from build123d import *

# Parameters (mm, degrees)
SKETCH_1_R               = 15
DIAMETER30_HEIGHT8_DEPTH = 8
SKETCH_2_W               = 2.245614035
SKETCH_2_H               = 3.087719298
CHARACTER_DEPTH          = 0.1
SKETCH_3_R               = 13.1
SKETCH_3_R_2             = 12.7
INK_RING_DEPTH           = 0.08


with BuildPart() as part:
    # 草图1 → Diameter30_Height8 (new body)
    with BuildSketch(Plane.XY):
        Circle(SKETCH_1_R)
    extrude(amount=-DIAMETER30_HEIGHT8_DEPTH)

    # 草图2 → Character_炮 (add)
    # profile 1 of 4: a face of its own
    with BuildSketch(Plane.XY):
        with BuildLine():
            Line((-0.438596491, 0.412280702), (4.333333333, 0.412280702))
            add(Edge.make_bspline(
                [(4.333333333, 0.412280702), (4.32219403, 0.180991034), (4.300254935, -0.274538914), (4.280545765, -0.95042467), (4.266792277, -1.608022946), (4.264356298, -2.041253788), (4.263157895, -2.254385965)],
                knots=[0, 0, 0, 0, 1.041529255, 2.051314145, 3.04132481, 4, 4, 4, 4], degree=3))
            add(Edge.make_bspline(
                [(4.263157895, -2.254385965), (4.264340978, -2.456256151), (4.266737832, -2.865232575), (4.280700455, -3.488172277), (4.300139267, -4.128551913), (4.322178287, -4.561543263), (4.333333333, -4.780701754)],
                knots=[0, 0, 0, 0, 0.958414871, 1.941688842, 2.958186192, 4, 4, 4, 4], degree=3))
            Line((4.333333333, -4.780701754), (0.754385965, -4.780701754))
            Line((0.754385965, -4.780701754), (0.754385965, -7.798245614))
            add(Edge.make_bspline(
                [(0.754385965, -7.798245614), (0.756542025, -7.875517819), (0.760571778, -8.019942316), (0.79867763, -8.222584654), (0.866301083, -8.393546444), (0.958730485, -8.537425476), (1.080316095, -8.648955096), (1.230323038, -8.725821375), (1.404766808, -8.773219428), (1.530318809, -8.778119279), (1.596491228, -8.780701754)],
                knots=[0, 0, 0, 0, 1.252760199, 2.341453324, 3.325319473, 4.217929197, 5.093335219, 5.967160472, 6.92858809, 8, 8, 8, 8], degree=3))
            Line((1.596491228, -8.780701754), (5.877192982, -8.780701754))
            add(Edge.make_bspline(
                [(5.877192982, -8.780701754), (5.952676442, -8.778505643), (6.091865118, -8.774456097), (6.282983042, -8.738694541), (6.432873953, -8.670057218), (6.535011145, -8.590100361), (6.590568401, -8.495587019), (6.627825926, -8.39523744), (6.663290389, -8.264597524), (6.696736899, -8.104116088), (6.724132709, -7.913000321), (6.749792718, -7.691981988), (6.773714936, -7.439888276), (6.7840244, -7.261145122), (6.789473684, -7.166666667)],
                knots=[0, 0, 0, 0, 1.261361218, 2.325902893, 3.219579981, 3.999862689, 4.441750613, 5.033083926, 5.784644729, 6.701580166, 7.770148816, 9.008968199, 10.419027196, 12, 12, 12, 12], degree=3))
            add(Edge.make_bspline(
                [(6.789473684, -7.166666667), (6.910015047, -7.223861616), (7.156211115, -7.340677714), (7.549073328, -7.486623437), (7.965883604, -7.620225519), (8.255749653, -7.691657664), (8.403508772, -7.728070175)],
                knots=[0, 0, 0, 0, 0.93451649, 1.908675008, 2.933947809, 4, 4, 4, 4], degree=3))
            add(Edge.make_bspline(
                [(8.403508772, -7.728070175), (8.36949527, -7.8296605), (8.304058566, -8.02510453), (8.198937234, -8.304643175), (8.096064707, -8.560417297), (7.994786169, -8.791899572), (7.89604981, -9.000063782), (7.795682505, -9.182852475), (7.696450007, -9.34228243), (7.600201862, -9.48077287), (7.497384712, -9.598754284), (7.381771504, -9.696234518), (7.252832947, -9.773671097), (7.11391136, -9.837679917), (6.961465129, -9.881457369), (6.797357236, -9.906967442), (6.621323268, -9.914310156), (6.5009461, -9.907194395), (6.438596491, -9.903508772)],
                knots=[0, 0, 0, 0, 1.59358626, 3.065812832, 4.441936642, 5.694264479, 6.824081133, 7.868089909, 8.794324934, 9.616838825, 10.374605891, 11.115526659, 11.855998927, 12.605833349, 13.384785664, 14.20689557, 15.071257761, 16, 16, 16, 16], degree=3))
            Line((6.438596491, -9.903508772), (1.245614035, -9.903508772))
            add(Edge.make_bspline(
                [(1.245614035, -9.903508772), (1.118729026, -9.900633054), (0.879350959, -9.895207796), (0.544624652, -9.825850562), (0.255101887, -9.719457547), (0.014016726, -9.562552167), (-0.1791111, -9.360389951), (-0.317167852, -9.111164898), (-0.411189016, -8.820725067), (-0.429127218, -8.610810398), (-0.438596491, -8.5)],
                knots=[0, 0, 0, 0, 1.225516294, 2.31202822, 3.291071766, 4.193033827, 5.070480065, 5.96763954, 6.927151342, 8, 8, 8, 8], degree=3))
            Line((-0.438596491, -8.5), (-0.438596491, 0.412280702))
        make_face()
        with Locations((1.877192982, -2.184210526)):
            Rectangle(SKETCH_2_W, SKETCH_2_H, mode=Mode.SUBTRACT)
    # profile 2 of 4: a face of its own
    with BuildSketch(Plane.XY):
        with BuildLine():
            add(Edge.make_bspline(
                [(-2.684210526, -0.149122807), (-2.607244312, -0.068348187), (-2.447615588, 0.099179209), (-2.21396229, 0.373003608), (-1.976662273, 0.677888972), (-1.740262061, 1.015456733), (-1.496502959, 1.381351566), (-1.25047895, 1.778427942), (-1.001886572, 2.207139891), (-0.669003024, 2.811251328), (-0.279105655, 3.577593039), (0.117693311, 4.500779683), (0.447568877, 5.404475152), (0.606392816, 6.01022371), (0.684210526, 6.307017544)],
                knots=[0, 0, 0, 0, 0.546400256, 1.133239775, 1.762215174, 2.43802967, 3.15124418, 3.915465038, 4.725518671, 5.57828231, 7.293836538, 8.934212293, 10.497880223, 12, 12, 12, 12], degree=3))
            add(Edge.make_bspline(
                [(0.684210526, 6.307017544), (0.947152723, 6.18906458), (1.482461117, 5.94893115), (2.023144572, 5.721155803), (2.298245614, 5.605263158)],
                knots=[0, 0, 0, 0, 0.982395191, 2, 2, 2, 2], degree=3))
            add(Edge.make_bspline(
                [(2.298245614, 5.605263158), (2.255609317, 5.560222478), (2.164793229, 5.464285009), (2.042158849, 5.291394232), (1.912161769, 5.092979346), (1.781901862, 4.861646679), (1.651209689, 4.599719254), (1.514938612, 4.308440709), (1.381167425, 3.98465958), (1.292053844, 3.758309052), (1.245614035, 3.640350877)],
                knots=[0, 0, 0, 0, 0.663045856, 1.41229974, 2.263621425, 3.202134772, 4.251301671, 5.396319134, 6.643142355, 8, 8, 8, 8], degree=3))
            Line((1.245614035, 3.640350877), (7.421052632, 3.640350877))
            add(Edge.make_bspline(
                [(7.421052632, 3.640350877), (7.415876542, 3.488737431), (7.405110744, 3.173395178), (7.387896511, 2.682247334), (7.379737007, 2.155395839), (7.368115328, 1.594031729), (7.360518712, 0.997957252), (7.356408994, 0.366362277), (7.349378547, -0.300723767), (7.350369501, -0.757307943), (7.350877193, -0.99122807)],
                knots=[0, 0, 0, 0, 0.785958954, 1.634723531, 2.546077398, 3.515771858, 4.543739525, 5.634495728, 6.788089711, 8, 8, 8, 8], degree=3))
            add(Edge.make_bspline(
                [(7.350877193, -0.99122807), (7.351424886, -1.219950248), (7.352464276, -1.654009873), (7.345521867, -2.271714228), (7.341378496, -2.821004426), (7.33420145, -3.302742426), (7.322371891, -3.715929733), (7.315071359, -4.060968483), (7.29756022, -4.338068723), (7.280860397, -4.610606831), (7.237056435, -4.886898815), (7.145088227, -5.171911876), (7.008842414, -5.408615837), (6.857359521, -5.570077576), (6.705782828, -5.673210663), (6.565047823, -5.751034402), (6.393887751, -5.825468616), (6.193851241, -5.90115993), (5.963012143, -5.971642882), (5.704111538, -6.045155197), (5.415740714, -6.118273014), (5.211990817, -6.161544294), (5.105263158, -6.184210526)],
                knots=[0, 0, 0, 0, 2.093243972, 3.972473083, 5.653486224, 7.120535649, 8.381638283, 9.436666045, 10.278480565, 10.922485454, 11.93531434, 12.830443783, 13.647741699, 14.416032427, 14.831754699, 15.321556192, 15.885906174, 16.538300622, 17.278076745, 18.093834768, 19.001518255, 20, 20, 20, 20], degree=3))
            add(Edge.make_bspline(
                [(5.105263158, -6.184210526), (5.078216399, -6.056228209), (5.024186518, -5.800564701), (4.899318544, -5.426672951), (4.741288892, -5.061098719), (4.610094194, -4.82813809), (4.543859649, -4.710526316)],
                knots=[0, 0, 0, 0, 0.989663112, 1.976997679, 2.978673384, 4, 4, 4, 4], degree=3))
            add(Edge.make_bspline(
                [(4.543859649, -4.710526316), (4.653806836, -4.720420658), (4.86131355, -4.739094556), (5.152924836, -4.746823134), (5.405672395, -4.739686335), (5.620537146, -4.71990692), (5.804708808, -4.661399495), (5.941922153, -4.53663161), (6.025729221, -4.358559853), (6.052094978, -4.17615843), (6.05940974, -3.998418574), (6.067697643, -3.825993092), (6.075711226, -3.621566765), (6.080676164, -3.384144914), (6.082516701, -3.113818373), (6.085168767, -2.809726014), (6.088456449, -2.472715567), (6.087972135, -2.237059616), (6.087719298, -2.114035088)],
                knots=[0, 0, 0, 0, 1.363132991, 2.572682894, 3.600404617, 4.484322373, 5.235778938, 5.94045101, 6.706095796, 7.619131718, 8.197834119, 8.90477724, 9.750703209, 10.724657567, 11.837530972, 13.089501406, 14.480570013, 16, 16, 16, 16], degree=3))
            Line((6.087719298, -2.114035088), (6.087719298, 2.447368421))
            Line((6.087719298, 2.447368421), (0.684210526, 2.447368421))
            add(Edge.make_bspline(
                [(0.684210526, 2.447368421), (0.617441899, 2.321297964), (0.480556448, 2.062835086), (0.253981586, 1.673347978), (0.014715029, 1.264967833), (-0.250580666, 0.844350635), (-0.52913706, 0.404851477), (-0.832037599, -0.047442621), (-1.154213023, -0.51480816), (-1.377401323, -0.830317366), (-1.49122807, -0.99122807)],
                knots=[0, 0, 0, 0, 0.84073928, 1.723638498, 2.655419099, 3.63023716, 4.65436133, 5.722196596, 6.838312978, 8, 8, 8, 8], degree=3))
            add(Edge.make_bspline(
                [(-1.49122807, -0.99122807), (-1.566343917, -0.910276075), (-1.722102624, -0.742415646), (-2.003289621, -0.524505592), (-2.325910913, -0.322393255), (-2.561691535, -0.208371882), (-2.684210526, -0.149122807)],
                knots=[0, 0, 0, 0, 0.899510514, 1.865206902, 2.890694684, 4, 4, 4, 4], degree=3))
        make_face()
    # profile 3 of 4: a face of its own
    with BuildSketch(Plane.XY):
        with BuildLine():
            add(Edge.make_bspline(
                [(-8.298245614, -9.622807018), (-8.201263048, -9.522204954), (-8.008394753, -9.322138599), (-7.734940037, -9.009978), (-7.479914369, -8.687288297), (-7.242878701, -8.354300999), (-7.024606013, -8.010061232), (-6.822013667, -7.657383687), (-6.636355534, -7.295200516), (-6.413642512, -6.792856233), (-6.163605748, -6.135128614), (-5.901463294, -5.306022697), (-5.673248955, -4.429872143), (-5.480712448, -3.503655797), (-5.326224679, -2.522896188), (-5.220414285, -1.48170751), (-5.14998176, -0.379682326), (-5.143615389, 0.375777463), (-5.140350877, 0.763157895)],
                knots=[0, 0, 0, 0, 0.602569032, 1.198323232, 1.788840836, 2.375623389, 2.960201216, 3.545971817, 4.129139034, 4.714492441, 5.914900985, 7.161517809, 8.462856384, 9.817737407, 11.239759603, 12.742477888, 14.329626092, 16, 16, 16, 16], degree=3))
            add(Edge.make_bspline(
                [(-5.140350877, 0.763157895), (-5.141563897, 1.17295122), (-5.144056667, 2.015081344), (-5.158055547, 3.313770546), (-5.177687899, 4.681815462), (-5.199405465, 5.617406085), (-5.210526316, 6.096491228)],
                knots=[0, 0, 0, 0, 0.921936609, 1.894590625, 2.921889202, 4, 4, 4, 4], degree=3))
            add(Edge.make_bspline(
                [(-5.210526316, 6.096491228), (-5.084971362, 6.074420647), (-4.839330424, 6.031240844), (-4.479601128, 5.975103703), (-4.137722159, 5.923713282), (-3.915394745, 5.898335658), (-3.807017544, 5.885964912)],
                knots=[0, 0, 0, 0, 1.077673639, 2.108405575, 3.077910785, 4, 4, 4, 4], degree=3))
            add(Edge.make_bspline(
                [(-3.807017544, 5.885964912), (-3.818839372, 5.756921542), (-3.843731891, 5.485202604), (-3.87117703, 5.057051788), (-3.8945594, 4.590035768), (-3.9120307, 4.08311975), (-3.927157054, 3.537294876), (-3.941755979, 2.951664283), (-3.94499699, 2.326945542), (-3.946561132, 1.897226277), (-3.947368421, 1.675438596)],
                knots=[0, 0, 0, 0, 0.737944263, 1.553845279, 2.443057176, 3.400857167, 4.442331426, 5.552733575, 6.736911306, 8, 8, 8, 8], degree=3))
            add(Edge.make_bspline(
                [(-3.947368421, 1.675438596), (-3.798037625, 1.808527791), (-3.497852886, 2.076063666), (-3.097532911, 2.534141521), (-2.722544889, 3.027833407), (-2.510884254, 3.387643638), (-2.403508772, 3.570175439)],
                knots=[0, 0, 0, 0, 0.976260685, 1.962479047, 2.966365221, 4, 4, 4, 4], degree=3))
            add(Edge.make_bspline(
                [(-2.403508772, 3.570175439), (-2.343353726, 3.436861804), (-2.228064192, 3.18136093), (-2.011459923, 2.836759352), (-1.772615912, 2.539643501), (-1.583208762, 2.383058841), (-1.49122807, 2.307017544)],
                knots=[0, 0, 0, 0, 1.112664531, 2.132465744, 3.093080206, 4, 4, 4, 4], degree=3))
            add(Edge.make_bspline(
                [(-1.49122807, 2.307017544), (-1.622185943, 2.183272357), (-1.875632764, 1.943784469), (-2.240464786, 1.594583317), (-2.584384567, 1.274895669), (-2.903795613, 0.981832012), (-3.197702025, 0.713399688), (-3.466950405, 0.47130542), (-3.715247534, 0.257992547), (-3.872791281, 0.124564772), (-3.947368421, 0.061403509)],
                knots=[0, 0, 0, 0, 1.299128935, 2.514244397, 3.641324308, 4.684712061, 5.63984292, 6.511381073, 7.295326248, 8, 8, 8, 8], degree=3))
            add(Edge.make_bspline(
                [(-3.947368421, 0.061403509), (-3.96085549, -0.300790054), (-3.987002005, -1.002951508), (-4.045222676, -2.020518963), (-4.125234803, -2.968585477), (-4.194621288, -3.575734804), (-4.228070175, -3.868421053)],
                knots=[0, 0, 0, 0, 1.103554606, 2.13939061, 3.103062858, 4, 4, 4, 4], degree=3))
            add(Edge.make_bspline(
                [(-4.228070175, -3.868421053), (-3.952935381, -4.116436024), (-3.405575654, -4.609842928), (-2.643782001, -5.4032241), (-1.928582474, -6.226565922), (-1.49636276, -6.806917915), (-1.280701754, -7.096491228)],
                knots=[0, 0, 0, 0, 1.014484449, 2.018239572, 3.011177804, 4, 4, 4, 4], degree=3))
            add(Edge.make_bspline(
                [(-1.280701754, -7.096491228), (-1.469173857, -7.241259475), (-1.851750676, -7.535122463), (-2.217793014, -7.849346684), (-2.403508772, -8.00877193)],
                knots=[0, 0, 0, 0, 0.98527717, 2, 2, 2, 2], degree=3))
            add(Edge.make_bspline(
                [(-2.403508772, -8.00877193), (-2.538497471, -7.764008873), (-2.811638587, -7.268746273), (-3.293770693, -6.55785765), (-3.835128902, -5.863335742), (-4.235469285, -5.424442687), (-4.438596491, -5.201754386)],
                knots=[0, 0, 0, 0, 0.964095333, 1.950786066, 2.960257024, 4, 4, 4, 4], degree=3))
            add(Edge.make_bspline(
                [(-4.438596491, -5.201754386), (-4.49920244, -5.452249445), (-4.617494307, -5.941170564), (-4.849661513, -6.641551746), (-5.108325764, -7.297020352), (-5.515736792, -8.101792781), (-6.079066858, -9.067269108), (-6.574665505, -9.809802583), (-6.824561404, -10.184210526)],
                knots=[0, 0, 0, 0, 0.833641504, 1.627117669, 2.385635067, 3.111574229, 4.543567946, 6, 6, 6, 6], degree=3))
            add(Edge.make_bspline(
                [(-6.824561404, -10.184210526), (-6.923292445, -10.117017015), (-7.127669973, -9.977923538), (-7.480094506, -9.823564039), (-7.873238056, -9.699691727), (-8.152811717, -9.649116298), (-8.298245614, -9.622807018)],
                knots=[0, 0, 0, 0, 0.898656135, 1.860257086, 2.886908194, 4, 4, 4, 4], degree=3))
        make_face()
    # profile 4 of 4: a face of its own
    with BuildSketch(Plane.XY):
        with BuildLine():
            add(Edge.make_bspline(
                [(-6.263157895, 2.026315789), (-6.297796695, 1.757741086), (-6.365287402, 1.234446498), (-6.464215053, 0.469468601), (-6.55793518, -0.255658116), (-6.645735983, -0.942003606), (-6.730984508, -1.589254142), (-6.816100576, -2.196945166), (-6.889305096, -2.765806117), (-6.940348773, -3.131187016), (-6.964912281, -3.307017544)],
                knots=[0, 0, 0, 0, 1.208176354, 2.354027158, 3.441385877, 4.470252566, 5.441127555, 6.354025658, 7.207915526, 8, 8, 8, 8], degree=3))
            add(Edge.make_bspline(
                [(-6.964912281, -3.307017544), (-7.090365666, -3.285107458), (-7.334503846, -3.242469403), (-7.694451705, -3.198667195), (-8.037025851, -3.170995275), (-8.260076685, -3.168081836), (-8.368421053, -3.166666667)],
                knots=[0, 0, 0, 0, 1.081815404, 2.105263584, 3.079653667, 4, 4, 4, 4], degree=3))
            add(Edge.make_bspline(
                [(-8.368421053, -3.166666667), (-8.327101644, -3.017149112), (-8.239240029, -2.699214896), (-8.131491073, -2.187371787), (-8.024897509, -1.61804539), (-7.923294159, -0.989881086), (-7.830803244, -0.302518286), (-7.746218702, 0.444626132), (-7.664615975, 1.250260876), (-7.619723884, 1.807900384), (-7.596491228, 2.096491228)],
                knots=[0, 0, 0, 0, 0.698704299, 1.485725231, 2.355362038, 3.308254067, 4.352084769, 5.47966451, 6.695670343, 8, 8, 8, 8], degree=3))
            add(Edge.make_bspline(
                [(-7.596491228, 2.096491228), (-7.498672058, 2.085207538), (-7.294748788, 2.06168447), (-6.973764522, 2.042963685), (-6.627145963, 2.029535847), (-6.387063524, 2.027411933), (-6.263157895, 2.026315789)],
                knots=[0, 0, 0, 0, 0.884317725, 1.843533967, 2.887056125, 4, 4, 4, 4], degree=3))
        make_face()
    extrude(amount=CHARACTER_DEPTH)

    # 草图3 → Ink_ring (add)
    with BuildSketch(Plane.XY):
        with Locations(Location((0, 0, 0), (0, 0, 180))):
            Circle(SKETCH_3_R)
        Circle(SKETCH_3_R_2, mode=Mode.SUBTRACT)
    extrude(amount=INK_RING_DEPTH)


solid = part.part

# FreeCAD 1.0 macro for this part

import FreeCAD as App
import Part
import Sketcher

V = App.Vector

doc = App.newDocument("Part")
body = doc.addObject("PartDesign::Body", "Body")

# Sketch on XY plane
sketch1 = body.newObject("Sketcher::SketchObject", "Sketch")
sketch1.AttachmentSupport = (doc.getObject("XY_Plane"), [""])
sketch1.MapMode = "FlatFace"
sketch1.addGeometry(Part.Circle(V(0, 0, 0), V(0, 0, 1), 15), False)
sketch1.addConstraint([
    Sketcher.Constraint("Coincident", 0, 3, -1, 1),
    Sketcher.Constraint("Diameter", 0, 30.0),
])
pad1 = body.newObject("PartDesign::Pad", "Pad")
pad1.Profile = sketch1
pad1.Length = 8
pad1.Reversed = True

# Sketch on XY plane
sketch2 = body.newObject("Sketcher::SketchObject", "Sketch001")
sketch2.AttachmentSupport = (doc.getObject("XY_Plane"), [""])
sketch2.MapMode = "FlatFace"
sketch2.addGeometry([
    Part.LineSegment(V(4.333333, 0.412281, 0), V(-0.438596, 0.412281, 0)),  # 0
    Part.LineSegment(V(-0.438596, 0.412281, 0), V(-0.438596, -8.5, 0)),  # 1
    Part.BSplineCurve([V(1.245614, -9.903509, 0), V(1.118729, -9.900633, 0), V(0.879351, -9.895208, 0), V(0.544625, -9.825851, 0), V(0.255102, -9.719458, 0), V(0.014017, -9.562552, 0), V(-0.179111, -9.36039, 0), V(-0.317168, -9.111165, 0), V(-0.411189, -8.820725, 0), V(-0.429127, -8.61081, 0), V(-0.438596, -8.5, 0)], [4, 1, 1, 1, 1, 1, 1, 1, 4], [0, 1.225516294, 2.31202822, 3.291071766, 4.193033827, 5.070480065, 5.96763954, 6.927151342, 8], False, 3, [1, 1, 1, 1, 1, 1, 1, 1, 1, 1, 1], False),  # 2
    Part.LineSegment(V(1.245614, -9.903509, 0), V(6.438596, -9.903509, 0)),  # 3
    Part.BSplineCurve([V(8.403509, -7.72807, 0), V(8.369495, -7.829661, 0), V(8.304059, -8.025105, 0), V(8.198937, -8.304643, 0), V(8.096065, -8.560417, 0), V(7.994786, -8.7919, 0), V(7.89605, -9.000064, 0), V(7.795683, -9.182852, 0), V(7.69645, -9.342282, 0), V(7.600202, -9.480773, 0), V(7.497385, -9.598754, 0), V(7.381772, -9.696235, 0), V(7.252833, -9.773671, 0), V(7.113911, -9.83768, 0), V(6.961465, -9.881457, 0), V(6.797357, -9.906967, 0), V(6.621323, -9.91431, 0), V(6.500946, -9.907194, 0), V(6.438596, -9.903509, 0)], [4, 1, 1, 1, 1, 1, 1, 1, 1, 1, 1, 1, 1, 1, 1, 1, 4], [0, 1.59358626, 3.065812832, 4.441936642, 5.694264479, 6.824081133, 7.868089909, 8.794324934, 9.616838825, 10.374605891, 11.115526659, 11.855998927, 12.605833349, 13.384785664, 14.20689557, 15.071257761, 16], False, 3, [1, 1, 1, 1, 1, 1, 1, 1, 1, 1, 1, 1, 1, 1, 1, 1, 1, 1, 1], False),  # 4
    Part.BSplineCurve([V(6.789474, -7.166667, 0), V(6.910015, -7.223862, 0), V(7.156211, -7.340678, 0), V(7.549073, -7.486623, 0), V(7.965884, -7.620226, 0), V(8.25575, -7.691658, 0), V(8.403509, -7.72807, 0)], [4, 1, 1, 1, 4], [0, 0.93451649, 1.908675008, 2.933947809, 4], False, 3, [1, 1, 1, 1, 1, 1, 1], False),  # 5
    Part.BSplineCurve([V(5.877193, -8.780702, 0), V(5.952676, -8.778506, 0), V(6.091865, -8.774456, 0), V(6.282983, -8.738695, 0), V(6.432874, -8.670057, 0), V(6.535011, -8.5901, 0), V(6.590568, -8.495587, 0), V(6.627826, -8.395237, 0), V(6.66329, -8.264598, 0), V(6.696737, -8.104116, 0), V(6.724133, -7.913, 0), V(6.749793, -7.691982, 0), V(6.773715, -7.439888, 0), V(6.784024, -7.261145, 0), V(6.789474, -7.166667, 0)], [4, 1, 1, 1, 1, 1, 1, 1, 1, 1, 1, 1, 4], [0, 1.261361218, 2.325902893, 3.219579981, 3.999862689, 4.441750613, 5.033083926, 5.784644729, 6.701580166, 7.770148816, 9.008968199, 10.419027196, 12], False, 3, [1, 1, 1, 1, 1, 1, 1, 1, 1, 1, 1, 1, 1, 1, 1], False),  # 6
    Part.LineSegment(V(5.877193, -8.780702, 0), V(1.596491, -8.780702, 0)),  # 7
    Part.BSplineCurve([V(0.754386, -7.798246, 0), V(0.756542, -7.875518, 0), V(0.760572, -8.019942, 0), V(0.798678, -8.222585, 0), V(0.866301, -8.393546, 0), V(0.95873, -8.537425, 0), V(1.080316, -8.648955, 0), V(1.230323, -8.725821, 0), V(1.404767, -8.773219, 0), V(1.530319, -8.778119, 0), V(1.596491, -8.780702, 0)], [4, 1, 1, 1, 1, 1, 1, 1, 4], [0, 1.252760199, 2.341453324, 3.325319473, 4.217929197, 5.093335219, 5.967160472, 6.92858809, 8], False, 3, [1, 1, 1, 1, 1, 1, 1, 1, 1, 1, 1], False),  # 8
    Part.LineSegment(V(0.754386, -7.798246, 0), V(0.754386, -4.780702, 0)),  # 9
    Part.LineSegment(V(0.754386, -4.780702, 0), V(4.333333, -4.780702, 0)),  # 10
    Part.BSplineCurve([V(4.263158, -2.254386, 0), V(4.264341, -2.456256, 0), V(4.266738, -2.865233, 0), V(4.2807, -3.488172, 0), V(4.300139, -4.128552, 0), V(4.322178, -4.561543, 0), V(4.333333, -4.780702, 0)], [4, 1, 1, 1, 4], [0, 0.958414871, 1.941688842, 2.958186192, 4], False, 3, [1, 1, 1, 1, 1, 1, 1], False),  # 11
    Part.BSplineCurve([V(4.333333, 0.412281, 0), V(4.322194, 0.180991, 0), V(4.300255, -0.274539, 0), V(4.280546, -0.950425, 0), V(4.266792, -1.608023, 0), V(4.264356, -2.041254, 0), V(4.263158, -2.254386, 0)], [4, 1, 1, 1, 4], [0, 1.041529255, 2.051314145, 3.04132481, 4], False, 3, [1, 1, 1, 1, 1, 1, 1], False),  # 12
    Part.LineSegment(V(0.754386, -3.72807, 0), V(0.754386, -0.640351, 0)),  # 13
    Part.LineSegment(V(0.754386, -0.640351, 0), V(3, -0.640351, 0)),  # 14
    Part.LineSegment(V(3, -0.640351, 0), V(3, -3.72807, 0)),  # 15
    Part.LineSegment(V(3, -3.72807, 0), V(0.754386, -3.72807, 0)),  # 16
    Part.BSplineCurve([V(-2.684211, -0.149123, 0), V(-2.607244, -0.068348, 0), V(-2.447616, 0.099179, 0), V(-2.213962, 0.373004, 0), V(-1.976662, 0.677889, 0), V(-1.740262, 1.015457, 0), V(-1.496503, 1.381352, 0), V(-1.250479, 1.778428, 0), V(-1.001887, 2.20714, 0), V(-0.669003, 2.811251, 0), V(-0.279106, 3.577593, 0), V(0.117693, 4.50078, 0), V(0.447569, 5.404475, 0), V(0.606393, 6.010224, 0), V(0.684211, 6.307018, 0)], [4, 1, 1, 1, 1, 1, 1, 1, 1, 1, 1, 1, 4], [0, 0.546400256, 1.133239775, 1.762215174, 2.43802967, 3.15124418, 3.915465038, 4.725518671, 5.57828231, 7.293836538, 8.934212293, 10.497880223, 12], False, 3, [1, 1, 1, 1, 1, 1, 1, 1, 1, 1, 1, 1, 1, 1, 1], False),  # 17
    Part.BSplineCurve([V(-1.491228, -0.991228, 0), V(-1.566344, -0.910276, 0), V(-1.722103, -0.742416, 0), V(-2.00329, -0.524506, 0), V(-2.325911, -0.322393, 0), V(-2.561692, -0.208372, 0), V(-2.684211, -0.149123, 0)], [4, 1, 1, 1, 4], [0, 0.899510514, 1.865206902, 2.890694684, 4], False, 3, [1, 1, 1, 1, 1, 1, 1], False),  # 18
    Part.BSplineCurve([V(0.684211, 2.447368, 0), V(0.617442, 2.321298, 0), V(0.480556, 2.062835, 0), V(0.253982, 1.673348, 0), V(0.014715, 1.264968, 0), V(-0.250581, 0.844351, 0), V(-0.529137, 0.404851, 0), V(-0.832038, -0.047443, 0), V(-1.154213, -0.514808, 0), V(-1.377401, -0.830317, 0), V(-1.491228, -0.991228, 0)], [4, 1, 1, 1, 1, 1, 1, 1, 4], [0, 0.84073928, 1.723638498, 2.655419099, 3.63023716, 4.65436133, 5.722196596, 6.838312978, 8], False, 3, [1, 1, 1, 1, 1, 1, 1, 1, 1, 1, 1], False),  # 19
    Part.LineSegment(V(0.684211, 2.447368, 0), V(6.087719, 2.447368, 0)),  # 20
    Part.LineSegment(V(6.087719, 2.447368, 0), V(6.087719, -2.114035, 0)),  # 21
    Part.BSplineCurve([V(4.54386, -4.710526, 0), V(4.653807, -4.720421, 0), V(4.861314, -4.739095, 0), V(5.152925, -4.746823, 0), V(5.405672, -4.739686, 0), V(5.620537, -4.719907, 0), V(5.804709, -4.661399, 0), V(5.941922, -4.536632, 0), V(6.025729, -4.35856, 0), V(6.052095, -4.176158, 0), V(6.05941, -3.998419, 0), V(6.067698, -3.825993, 0), V(6.075711, -3.621567, 0), V(6.080676, -3.384145, 0), V(6.082517, -3.113818, 0), V(6.085169, -2.809726, 0), V(6.088456, -2.472716, 0), V(6.087972, -2.23706, 0), V(6.087719, -2.114035, 0)], [4, 1, 1, 1, 1, 1, 1, 1, 1, 1, 1, 1, 1, 1, 1, 1, 4], [0, 1.363132991, 2.572682894, 3.600404617, 4.484322373, 5.235778938, 5.94045101, 6.706095796, 7.619131718, 8.197834119, 8.90477724, 9.750703209, 10.724657567, 11.837530972, 13.089501406, 14.480570013, 16], False, 3, [1, 1, 1, 1, 1, 1, 1, 1, 1, 1, 1, 1, 1, 1, 1, 1, 1, 1, 1], False),  # 22
    Part.BSplineCurve([V(5.105263, -6.184211, 0), V(5.078216, -6.056228, 0), V(5.024187, -5.800565, 0), V(4.899319, -5.426673, 0), V(4.741289, -5.061099, 0), V(4.610094, -4.828138, 0), V(4.54386, -4.710526, 0)], [4, 1, 1, 1, 4], [0, 0.989663112, 1.976997679, 2.978673384, 4], False, 3, [1, 1, 1, 1, 1, 1, 1], False),  # 23
    Part.BSplineCurve([V(7.350877, -0.991228, 0), V(7.351425, -1.21995, 0), V(7.352464, -1.65401, 0), V(7.345522, -2.271714, 0), V(7.341378, -2.821004, 0), V(7.334201, -3.302742, 0), V(7.322372, -3.71593, 0), V(7.315071, -4.060968, 0), V(7.29756, -4.338069, 0), V(7.28086, -4.610607, 0), V(7.237056, -4.886899, 0), V(7.145088, -5.171912, 0), V(7.008842, -5.408616, 0), V(6.85736, -5.570078, 0), V(6.705783, -5.673211, 0), V(6.565048, -5.751034, 0), V(6.393888, -5.825469, 0), V(6.193851, -5.90116, 0), V(5.963012, -5.971643, 0), V(5.704112, -6.045155, 0), V(5.415741, -6.118273, 0), V(5.211991, -6.161544, 0), V(5.105263, -6.184211, 0)], [4, 1, 1, 1, 1, 1, 1, 1, 1, 1, 1, 1, 1, 1, 1, 1, 1, 1, 1, 1, 4], [0, 2.093243972, 3.972473083, 5.653486224, 7.120535649, 8.381638283, 9.436666045, 10.278480565, 10.922485454, 11.93531434, 12.830443783, 13.647741699, 14.416032427, 14.831754699, 15.321556192, 15.885906174, 16.538300622, 17.278076745, 18.093834768, 19.001518255, 20], False, 3, [1, 1, 1, 1, 1, 1, 1, 1, 1, 1, 1, 1, 1, 1, 1, 1, 1, 1, 1, 1, 1, 1, 1], False),  # 24
    Part.BSplineCurve([V(7.421053, 3.640351, 0), V(7.415877, 3.488737, 0), V(7.405111, 3.173395, 0), V(7.387897, 2.682247, 0), V(7.379737, 2.155396, 0), V(7.368115, 1.594032, 0), V(7.360519, 0.997957, 0), V(7.356409, 0.366362, 0), V(7.349379, -0.300724, 0), V(7.35037, -0.757308, 0), V(7.350877, -0.991228, 0)], [4, 1, 1, 1, 1, 1, 1, 1, 4], [0, 0.785958954, 1.634723531, 2.546077398, 3.515771858, 4.543739525, 5.634495728, 6.788089711, 8], False, 3, [1, 1, 1, 1, 1, 1, 1, 1, 1, 1, 1], False),  # 25
    Part.LineSegment(V(7.421053, 3.640351, 0), V(1.245614, 3.640351, 0)),  # 26
    Part.BSplineCurve([V(2.298246, 5.605263, 0), V(2.255609, 5.560222, 0), V(2.164793, 5.464285, 0), V(2.042159, 5.291394, 0), V(1.912162, 5.092979, 0), V(1.781902, 4.861647, 0), V(1.65121, 4.599719, 0), V(1.514939, 4.308441, 0), V(1.381167, 3.98466, 0), V(1.292054, 3.758309, 0), V(1.245614, 3.640351, 0)], [4, 1, 1, 1, 1, 1, 1, 1, 4], [0, 0.663045856, 1.41229974, 2.263621425, 3.202134772, 4.251301671, 5.396319134, 6.643142355, 8], False, 3, [1, 1, 1, 1, 1, 1, 1, 1, 1, 1, 1], False),  # 27
    Part.BSplineCurve([V(0.684211, 6.307018, 0), V(0.947153, 6.189065, 0), V(1.482461, 5.948931, 0), V(2.023145, 5.721156, 0), V(2.298246, 5.605263, 0)], [4, 1, 4], [0, 0.982395191, 2], False, 3, [1, 1, 1, 1, 1], False),  # 28
    Part.BSplineCurve([V(-8.298246, -9.622807, 0), V(-8.201263, -9.522205, 0), V(-8.008395, -9.322139, 0), V(-7.73494, -9.009978, 0), V(-7.479914, -8.687288, 0), V(-7.242879, -8.354301, 0), V(-7.024606, -8.010061, 0), V(-6.822014, -7.657384, 0), V(-6.636356, -7.295201, 0), V(-6.413643, -6.792856, 0), V(-6.163606, -6.135129, 0), V(-5.901463, -5.306023, 0), V(-5.673249, -4.429872, 0), V(-5.480712, -3.503656, 0), V(-5.326225, -2.522896, 0), V(-5.220414, -1.481708, 0), V(-5.149982, -0.379682, 0), V(-5.143615, 0.375777, 0), V(-5.140351, 0.763158, 0)], [4, 1, 1, 1, 1, 1, 1, 1, 1, 1, 1, 1, 1, 1, 1, 1, 4], [0, 0.602569032, 1.198323232, 1.788840836, 2.375623389, 2.960201216, 3.545971817, 4.129139034, 4.714492441, 5.914900985, 7.161517809, 8.462856384, 9.817737407, 11.239759603, 12.742477888, 14.329626092, 16], False, 3, [1, 1, 1, 1, 1, 1, 1, 1, 1, 1, 1, 1, 1, 1, 1, 1, 1, 1, 1], False),  # 29
    Part.BSplineCurve([V(-6.824561, -10.184211, 0), V(-6.923292, -10.117017, 0), V(-7.12767, -9.977924, 0), V(-7.480095, -9.823564, 0), V(-7.873238, -9.699692, 0), V(-8.152812, -9.649116, 0), V(-8.298246, -9.622807, 0)], [4, 1, 1, 1, 4], [0, 0.898656135, 1.860257086, 2.886908194, 4], False, 3, [1, 1, 1, 1, 1, 1, 1], False),  # 30
    Part.BSplineCurve([V(-4.438596, -5.201754, 0), V(-4.499202, -5.452249, 0), V(-4.617494, -5.941171, 0), V(-4.849662, -6.641552, 0), V(-5.108326, -7.29702, 0), V(-5.515737, -8.101793, 0), V(-6.079067, -9.067269, 0), V(-6.574666, -9.809803, 0), V(-6.824561, -10.184211, 0)], [4, 1, 1, 1, 1, 1, 4], [0, 0.833641504, 1.627117669, 2.385635067, 3.111574229, 4.543567946, 6], False, 3, [1, 1, 1, 1, 1, 1, 1, 1, 1], False),  # 31
    Part.BSplineCurve([V(-2.403509, -8.008772, 0), V(-2.538497, -7.764009, 0), V(-2.811639, -7.268746, 0), V(-3.293771, -6.557858, 0), V(-3.835129, -5.863336, 0), V(-4.235469, -5.424443, 0), V(-4.438596, -5.201754, 0)], [4, 1, 1, 1, 4], [0, 0.964095333, 1.950786066, 2.960257024, 4], False, 3, [1, 1, 1, 1, 1, 1, 1], False),  # 32
    Part.BSplineCurve([V(-1.280702, -7.096491, 0), V(-1.469174, -7.241259, 0), V(-1.851751, -7.535122, 0), V(-2.217793, -7.849347, 0), V(-2.403509, -8.008772, 0)], [4, 1, 4], [0, 0.98527717, 2], False, 3, [1, 1, 1, 1, 1], False),  # 33
    Part.BSplineCurve([V(-4.22807, -3.868421, 0), V(-3.952935, -4.116436, 0), V(-3.405576, -4.609843, 0), V(-2.643782, -5.403224, 0), V(-1.928582, -6.226566, 0), V(-1.496363, -6.806918, 0), V(-1.280702, -7.096491, 0)], [4, 1, 1, 1, 4], [0, 1.014484449, 2.018239572, 3.011177804, 4], False, 3, [1, 1, 1, 1, 1, 1, 1], False),  # 34
    Part.BSplineCurve([V(-3.947368, 0.061404, 0), V(-3.960855, -0.30079, 0), V(-3.987002, -1.002952, 0), V(-4.045223, -2.020519, 0), V(-4.125235, -2.968585, 0), V(-4.194621, -3.575735, 0), V(-4.22807, -3.868421, 0)], [4, 1, 1, 1, 4], [0, 1.103554606, 2.13939061, 3.103062858, 4], False, 3, [1, 1, 1, 1, 1, 1, 1], False),  # 35
    Part.BSplineCurve([V(-1.491228, 2.307018, 0), V(-1.622186, 2.183272, 0), V(-1.875633, 1.943784, 0), V(-2.240465, 1.594583, 0), V(-2.584385, 1.274896, 0), V(-2.903796, 0.981832, 0), V(-3.197702, 0.7134, 0), V(-3.46695, 0.471305, 0), V(-3.715248, 0.257993, 0), V(-3.872791, 0.124565, 0), V(-3.947368, 0.061404, 0)], [4, 1, 1, 1, 1, 1, 1, 1, 4], [0, 1.299128935, 2.514244397, 3.641324308, 4.684712061, 5.63984292, 6.511381073, 7.295326248, 8], False, 3, [1, 1, 1, 1, 1, 1, 1, 1, 1, 1, 1], False),  # 36
    Part.BSplineCurve([V(-2.403509, 3.570175, 0), V(-2.343354, 3.436862, 0), V(-2.228064, 3.181361, 0), V(-2.01146, 2.836759, 0), V(-1.772616, 2.539644, 0), V(-1.583209, 2.383059, 0), V(-1.491228, 2.307018, 0)], [4, 1, 1, 1, 4], [0, 1.112664531, 2.132465744, 3.093080206, 4], False, 3, [1, 1, 1, 1, 1, 1, 1], False),  # 37
    Part.BSplineCurve([V(-3.947368, 1.675439, 0), V(-3.798038, 1.808528, 0), V(-3.497853, 2.076064, 0), V(-3.097533, 2.534142, 0), V(-2.722545, 3.027833, 0), V(-2.510884, 3.387644, 0), V(-2.403509, 3.570175, 0)], [4, 1, 1, 1, 4], [0, 0.976260685, 1.962479047, 2.966365221, 4], False, 3, [1, 1, 1, 1, 1, 1, 1], False),  # 38
    Part.BSplineCurve([V(-3.807018, 5.885965, 0), V(-3.818839, 5.756922, 0), V(-3.843732, 5.485203, 0), V(-3.871177, 5.057052, 0), V(-3.894559, 4.590036, 0), V(-3.912031, 4.08312, 0), V(-3.927157, 3.537295, 0), V(-3.941756, 2.951664, 0), V(-3.944997, 2.326946, 0), V(-3.946561, 1.897226, 0), V(-3.947368, 1.675439, 0)], [4, 1, 1, 1, 1, 1, 1, 1, 4], [0, 0.737944263, 1.553845279, 2.443057176, 3.400857167, 4.442331426, 5.552733575, 6.736911306, 8], False, 3, [1, 1, 1, 1, 1, 1, 1, 1, 1, 1, 1], False),  # 39
    Part.BSplineCurve([V(-5.210526, 6.096491, 0), V(-5.084971, 6.074421, 0), V(-4.83933, 6.031241, 0), V(-4.479601, 5.975104, 0), V(-4.137722, 5.923713, 0), V(-3.915395, 5.898336, 0), V(-3.807018, 5.885965, 0)], [4, 1, 1, 1, 4], [0, 1.077673639, 2.108405575, 3.077910785, 4], False, 3, [1, 1, 1, 1, 1, 1, 1], False),  # 40
    Part.BSplineCurve([V(-5.140351, 0.763158, 0), V(-5.141564, 1.172951, 0), V(-5.144057, 2.015081, 0), V(-5.158056, 3.313771, 0), V(-5.177688, 4.681815, 0), V(-5.199405, 5.617406, 0), V(-5.210526, 6.096491, 0)], [4, 1, 1, 1, 4], [0, 0.921936609, 1.894590625, 2.921889202, 4], False, 3, [1, 1, 1, 1, 1, 1, 1], False),  # 41
    Part.BSplineCurve([V(-6.263158, 2.026316, 0), V(-6.297797, 1.757741, 0), V(-6.365287, 1.234446, 0), V(-6.464215, 0.469469, 0), V(-6.557935, -0.255658, 0), V(-6.645736, -0.942004, 0), V(-6.730985, -1.589254, 0), V(-6.816101, -2.196945, 0), V(-6.889305, -2.765806, 0), V(-6.940349, -3.131187, 0), V(-6.964912, -3.307018, 0)], [4, 1, 1, 1, 1, 1, 1, 1, 4], [0, 1.208176354, 2.354027158, 3.441385877, 4.470252566, 5.441127555, 6.354025658, 7.207915526, 8], False, 3, [1, 1, 1, 1, 1, 1, 1, 1, 1, 1, 1], False),  # 42
    Part.BSplineCurve([V(-7.596491, 2.096491, 0), V(-7.498672, 2.085208, 0), V(-7.294749, 2.061684, 0), V(-6.973765, 2.042964, 0), V(-6.627146, 2.029536, 0), V(-6.387064, 2.027412, 0), V(-6.263158, 2.026316, 0)], [4, 1, 1, 1, 4], [0, 0.884317725, 1.843533967, 2.887056125, 4], False, 3, [1, 1, 1, 1, 1, 1, 1], False),  # 43
    Part.BSplineCurve([V(-8.368421, -3.166667, 0), V(-8.327102, -3.017149, 0), V(-8.23924, -2.699215, 0), V(-8.131491, -2.187372, 0), V(-8.024898, -1.618045, 0), V(-7.923294, -0.989881, 0), V(-7.830803, -0.302518, 0), V(-7.746219, 0.444626, 0), V(-7.664616, 1.250261, 0), V(-7.619724, 1.8079, 0), V(-7.596491, 2.096491, 0)], [4, 1, 1, 1, 1, 1, 1, 1, 4], [0, 0.698704299, 1.485725231, 2.355362038, 3.308254067, 4.352084769, 5.47966451, 6.695670343, 8], False, 3, [1, 1, 1, 1, 1, 1, 1, 1, 1, 1, 1], False),  # 44
    Part.BSplineCurve([V(-6.964912, -3.307018, 0), V(-7.090366, -3.285107, 0), V(-7.334504, -3.242469, 0), V(-7.694452, -3.198667, 0), V(-8.037026, -3.170995, 0), V(-8.260077, -3.168082, 0), V(-8.368421, -3.166667, 0)], [4, 1, 1, 1, 4], [0, 1.081815404, 2.105263584, 3.079653667, 4], False, 3, [1, 1, 1, 1, 1, 1, 1], False),  # 45
], False)
sketch2.addConstraint([
    Sketcher.Constraint("Block", 2),
    Sketcher.Constraint("Block", 4),
    Sketcher.Constraint("Block", 5),
    Sketcher.Constraint("Block", 6),
    Sketcher.Constraint("Block", 8),
    Sketcher.Constraint("Block", 11),
    Sketcher.Constraint("Block", 12),
    Sketcher.Constraint("Block", 17),
    Sketcher.Constraint("Block", 18),
    Sketcher.Constraint("Block", 19),
    Sketcher.Constraint("Block", 22),
    Sketcher.Constraint("Block", 23),
    Sketcher.Constraint("Block", 24),
    Sketcher.Constraint("Block", 25),
    Sketcher.Constraint("Block", 27),
    Sketcher.Constraint("Block", 28),
    Sketcher.Constraint("Block", 29),
    Sketcher.Constraint("Block", 30),
    Sketcher.Constraint("Block", 31),
    Sketcher.Constraint("Block", 32),
    Sketcher.Constraint("Block", 33),
    Sketcher.Constraint("Block", 34),
    Sketcher.Constraint("Block", 35),
    Sketcher.Constraint("Block", 36),
    Sketcher.Constraint("Block", 37),
    Sketcher.Constraint("Block", 38),
    Sketcher.Constraint("Block", 39),
    Sketcher.Constraint("Block", 40),
    Sketcher.Constraint("Block", 41),
    Sketcher.Constraint("Block", 42),
    Sketcher.Constraint("Block", 43),
    Sketcher.Constraint("Block", 44),
    Sketcher.Constraint("Block", 45),
    Sketcher.Constraint("Coincident", 0, 2, 1, 1),
    Sketcher.Constraint("Coincident", 1, 2, 2, 2),
    Sketcher.Constraint("Coincident", 2, 1, 3, 1),
    Sketcher.Constraint("Coincident", 3, 2, 4, 2),
    Sketcher.Constraint("Coincident", 6, 1, 7, 1),
    Sketcher.Constraint("Coincident", 7, 2, 8, 2),
    Sketcher.Constraint("Coincident", 8, 1, 9, 1),
    Sketcher.Constraint("Coincident", 9, 2, 10, 1),
    Sketcher.Constraint("Coincident", 10, 2, 11, 2),
    Sketcher.Constraint("Coincident", 12, 1, 0, 1),
    Sketcher.Constraint("Coincident", 13, 2, 14, 1),
    Sketcher.Constraint("Coincident", 14, 2, 15, 1),
    Sketcher.Constraint("Coincident", 15, 2, 16, 1),
    Sketcher.Constraint("Coincident", 16, 2, 13, 1),
    Sketcher.Constraint("Coincident", 19, 1, 20, 1),
    Sketcher.Constraint("Coincident", 20, 2, 21, 1),
    Sketcher.Constraint("Coincident", 21, 2, 22, 2),
    Sketcher.Constraint("Coincident", 25, 1, 26, 1),
    Sketcher.Constraint("Coincident", 26, 2, 27, 2),
    Sketcher.Constraint("Horizontal", 0),
    Sketcher.Constraint("Vertical", 1),
    Sketcher.Constraint("Vertical", 9),
    Sketcher.Constraint("Horizontal", 10),
    Sketcher.Constraint("Vertical", 13),
    Sketcher.Constraint("Horizontal", 14),
    Sketcher.Constraint("Vertical", 15),
    Sketcher.Constraint("Horizontal", 16),
    Sketcher.Constraint("Horizontal", 20),
    Sketcher.Constraint("Vertical", 21),
    Sketcher.Constraint("Vertical", 9, 2, 13, 2),
    Sketcher.Constraint("DistanceX", -1, 1, 14, 2, 3.0),
    Sketcher.Constraint("DistanceY", 13, 1, 13, 2, 3.087719),
    Sketcher.Constraint("DistanceY", 13, 2, 26, 2, 4.280702),
])
pad2 = body.newObject("PartDesign::Pad", "Pad001")
pad2.Profile = sketch2
pad2.Length = 0.1

# Sketch on XY plane
sketch3 = body.newObject("Sketcher::SketchObject", "Sketch002")
sketch3.AttachmentSupport = (doc.getObject("XY_Plane"), [""])
sketch3.MapMode = "FlatFace"
sketch3.addGeometry([
    Part.Circle(V(0, 0, 0), V(0, 0, 1), 13),
    Part.Circle(V(0, 0, 0), V(0, 0, 1), 13),
], False)
sketch3.addConstraint([
    Sketcher.Constraint("Coincident", 0, 3, -1, 1),
    Sketcher.Constraint("Coincident", 1, 3, -1, 1),
    Sketcher.Constraint("Diameter", 0, 26.2),
    Sketcher.Constraint("Diameter", 1, 25.4),
])
pad3 = body.newObject("PartDesign::Pad", "Pad002")
pad3.Profile = sketch3
pad3.Length = 0.08

doc.recompute()
